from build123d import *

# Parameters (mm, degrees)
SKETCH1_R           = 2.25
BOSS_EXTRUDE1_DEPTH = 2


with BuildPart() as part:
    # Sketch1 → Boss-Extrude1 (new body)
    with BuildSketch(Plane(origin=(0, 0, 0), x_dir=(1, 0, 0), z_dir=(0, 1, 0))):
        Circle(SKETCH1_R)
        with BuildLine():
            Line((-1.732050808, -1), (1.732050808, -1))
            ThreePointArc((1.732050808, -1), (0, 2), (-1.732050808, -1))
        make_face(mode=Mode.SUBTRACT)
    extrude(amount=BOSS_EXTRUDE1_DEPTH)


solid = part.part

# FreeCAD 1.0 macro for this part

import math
import FreeCAD as App
import Part
import Sketcher
from FreeCAD import Vector
Q = App.Units.Quantity

doc = App.newDocument("Part")
body = doc.addObject("PartDesign::Body", "Body")

# Sketch on XZ plane
sketch1 = doc.addObject("Sketcher::SketchObject", "Sketch")
body.addObject(sketch1)
sketch1.AttachmentSupport = (doc.XZ_Plane, [""])
sketch1.MapMode = "FlatFace"
sketch1.addGeometry([
    Part.Circle(Vector(0, 0, 0), Vector(0, 0, 1), 2.25),
    Part.LineSegment(Vector(1.732051, 1, 0), Vector(-1.732051, 1, 0)),
    Part.ArcOfCircle(Part.Circle(Vector(0, 0, 0), Vector(0, 0, 1), 2), math.radians(150), math.radians(390)),
], False)
sketch1.addConstraint([
    Sketcher.Constraint("Coincident", 1, 1, 2, 2),
    Sketcher.Constraint("Coincident", 2, 1, 1, 2),
    Sketcher.Constraint("Horizontal", 1),
    Sketcher.Constraint("Coincident", 0, 3, -1, 1),
    Sketcher.Constraint("Coincident", 2, 3, -1, 1),
    Sketcher.Constraint("Radius", 2, Q("2 mm")),
    Sketcher.Constraint("Diameter", 0, Q("4.5 mm")),
    Sketcher.Constraint("DistanceY", -1, 1, 1, 1, Q("1 mm")),
])
pad1 = doc.addObject("PartDesign::Pad", "Pad")
body.addObject(pad1)
pad1.Profile = sketch1
pad1.Length = 2
pad1.Reversed = True

doc.recompute()
